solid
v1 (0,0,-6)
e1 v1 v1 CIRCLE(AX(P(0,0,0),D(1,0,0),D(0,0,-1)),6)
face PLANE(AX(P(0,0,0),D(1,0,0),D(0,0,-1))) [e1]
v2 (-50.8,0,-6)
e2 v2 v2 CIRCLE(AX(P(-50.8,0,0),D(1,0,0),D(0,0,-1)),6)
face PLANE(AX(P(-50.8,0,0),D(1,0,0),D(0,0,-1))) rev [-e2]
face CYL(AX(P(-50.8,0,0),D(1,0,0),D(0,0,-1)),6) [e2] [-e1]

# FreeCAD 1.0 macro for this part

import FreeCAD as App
import Part
import Sketcher
Q = App.Units.Quantity

doc = App.newDocument("Part")
body = doc.addObject("PartDesign::Body", "Body")

# Sketch on YZ plane
sketch1 = doc.addObject("Sketcher::SketchObject", "Sketch")
body.addObject(sketch1)
sketch1.AttachmentSupport = (doc.YZ_Plane, [""])
sketch1.MapMode = "FlatFace"
sketch1.addGeometry(Part.Circle(App.Vector(0, 0, 0), App.Vector(0, 0, 1), 6), False)
sketch1.addConstraint(Sketcher.Constraint("Coincident", 0, 3, -1, 1))
sketch1.addConstraint(Sketcher.Constraint("Diameter", 0, Q("12 mm")))
pad1 = doc.addObject("PartDesign::Pad", "Pad")
body.addObject(pad1)
pad1.Profile = sketch1
pad1.Length = 50.8
pad1.Reversed = True

doc.recompute()
